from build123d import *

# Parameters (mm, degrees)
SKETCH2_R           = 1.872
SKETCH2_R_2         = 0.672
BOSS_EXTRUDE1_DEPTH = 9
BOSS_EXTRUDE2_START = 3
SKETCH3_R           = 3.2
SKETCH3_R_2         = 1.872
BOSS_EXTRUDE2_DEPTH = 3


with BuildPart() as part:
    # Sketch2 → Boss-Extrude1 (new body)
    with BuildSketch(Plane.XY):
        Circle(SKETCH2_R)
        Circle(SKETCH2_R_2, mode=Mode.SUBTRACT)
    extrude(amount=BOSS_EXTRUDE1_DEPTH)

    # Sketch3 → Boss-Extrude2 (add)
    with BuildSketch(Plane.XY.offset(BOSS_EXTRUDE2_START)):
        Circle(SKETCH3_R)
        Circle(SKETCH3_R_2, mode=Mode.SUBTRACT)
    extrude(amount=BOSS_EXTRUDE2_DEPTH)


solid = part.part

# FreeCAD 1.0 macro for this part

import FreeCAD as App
import Part
import Sketcher

V = App.Vector
Q = App.Units.Quantity

doc = App.newDocument("Part")
body = doc.addObject("PartDesign::Body", "Body")

sketch1 = body.newObject("Sketcher::SketchObject", "Sketch")
sketch1.AttachmentSupport = (doc.getObject("XY_Plane"), [""])
sketch1.MapMode = "FlatFace"
sketch1.addGeometry([
    Part.Circle(V(0, 0, 0), V(0, 0, 1), 1.9),
    Part.Circle(V(0, 0, 0), V(0, 0, 1), 0.7),
], False)
sketch1.addConstraint([
    Sketcher.Constraint("Coincident", 0, 3, -1, 1),
    Sketcher.Constraint("Coincident", 1, 3, -1, 1),
    Sketcher.Constraint("Diameter", 0, Q("3.744 mm")),
    Sketcher.Constraint("Diameter", 1, Q("1.344 mm")),
])
pad1 = body.newObject("PartDesign::Pad", "Pad")
pad1.Profile = sketch1
pad1.Length = 9

sketch2 = body.newObject("Sketcher::SketchObject", "Sketch001")
sketch2.AttachmentSupport = (doc.getObject("XY_Plane"), [""])
sketch2.MapMode = "FlatFace"
sketch2.AttachmentOffset = App.Placement(V(0, 0, 3), App.Rotation())
sketch2.addGeometry([
    Part.Circle(V(0, 0, 0), V(0, 0, 1), 3.2),
    Part.Circle(V(0, 0, 0), V(0, 0, 1), 1.9),
], False)
sketch2.addConstraint([
    Sketcher.Constraint("Coincident", 0, 3, -1, 1),
    Sketcher.Constraint("Coincident", 1, 3, -1, 1),
    Sketcher.Constraint("Diameter", 0, Q("6.4 mm")),
    Sketcher.Constraint("Diameter", 1, Q("3.744 mm")),
])
pad2 = body.newObject("PartDesign::Pad", "Pad001")
pad2.Profile = sketch2
pad2.Length = 3

doc.recompute()
